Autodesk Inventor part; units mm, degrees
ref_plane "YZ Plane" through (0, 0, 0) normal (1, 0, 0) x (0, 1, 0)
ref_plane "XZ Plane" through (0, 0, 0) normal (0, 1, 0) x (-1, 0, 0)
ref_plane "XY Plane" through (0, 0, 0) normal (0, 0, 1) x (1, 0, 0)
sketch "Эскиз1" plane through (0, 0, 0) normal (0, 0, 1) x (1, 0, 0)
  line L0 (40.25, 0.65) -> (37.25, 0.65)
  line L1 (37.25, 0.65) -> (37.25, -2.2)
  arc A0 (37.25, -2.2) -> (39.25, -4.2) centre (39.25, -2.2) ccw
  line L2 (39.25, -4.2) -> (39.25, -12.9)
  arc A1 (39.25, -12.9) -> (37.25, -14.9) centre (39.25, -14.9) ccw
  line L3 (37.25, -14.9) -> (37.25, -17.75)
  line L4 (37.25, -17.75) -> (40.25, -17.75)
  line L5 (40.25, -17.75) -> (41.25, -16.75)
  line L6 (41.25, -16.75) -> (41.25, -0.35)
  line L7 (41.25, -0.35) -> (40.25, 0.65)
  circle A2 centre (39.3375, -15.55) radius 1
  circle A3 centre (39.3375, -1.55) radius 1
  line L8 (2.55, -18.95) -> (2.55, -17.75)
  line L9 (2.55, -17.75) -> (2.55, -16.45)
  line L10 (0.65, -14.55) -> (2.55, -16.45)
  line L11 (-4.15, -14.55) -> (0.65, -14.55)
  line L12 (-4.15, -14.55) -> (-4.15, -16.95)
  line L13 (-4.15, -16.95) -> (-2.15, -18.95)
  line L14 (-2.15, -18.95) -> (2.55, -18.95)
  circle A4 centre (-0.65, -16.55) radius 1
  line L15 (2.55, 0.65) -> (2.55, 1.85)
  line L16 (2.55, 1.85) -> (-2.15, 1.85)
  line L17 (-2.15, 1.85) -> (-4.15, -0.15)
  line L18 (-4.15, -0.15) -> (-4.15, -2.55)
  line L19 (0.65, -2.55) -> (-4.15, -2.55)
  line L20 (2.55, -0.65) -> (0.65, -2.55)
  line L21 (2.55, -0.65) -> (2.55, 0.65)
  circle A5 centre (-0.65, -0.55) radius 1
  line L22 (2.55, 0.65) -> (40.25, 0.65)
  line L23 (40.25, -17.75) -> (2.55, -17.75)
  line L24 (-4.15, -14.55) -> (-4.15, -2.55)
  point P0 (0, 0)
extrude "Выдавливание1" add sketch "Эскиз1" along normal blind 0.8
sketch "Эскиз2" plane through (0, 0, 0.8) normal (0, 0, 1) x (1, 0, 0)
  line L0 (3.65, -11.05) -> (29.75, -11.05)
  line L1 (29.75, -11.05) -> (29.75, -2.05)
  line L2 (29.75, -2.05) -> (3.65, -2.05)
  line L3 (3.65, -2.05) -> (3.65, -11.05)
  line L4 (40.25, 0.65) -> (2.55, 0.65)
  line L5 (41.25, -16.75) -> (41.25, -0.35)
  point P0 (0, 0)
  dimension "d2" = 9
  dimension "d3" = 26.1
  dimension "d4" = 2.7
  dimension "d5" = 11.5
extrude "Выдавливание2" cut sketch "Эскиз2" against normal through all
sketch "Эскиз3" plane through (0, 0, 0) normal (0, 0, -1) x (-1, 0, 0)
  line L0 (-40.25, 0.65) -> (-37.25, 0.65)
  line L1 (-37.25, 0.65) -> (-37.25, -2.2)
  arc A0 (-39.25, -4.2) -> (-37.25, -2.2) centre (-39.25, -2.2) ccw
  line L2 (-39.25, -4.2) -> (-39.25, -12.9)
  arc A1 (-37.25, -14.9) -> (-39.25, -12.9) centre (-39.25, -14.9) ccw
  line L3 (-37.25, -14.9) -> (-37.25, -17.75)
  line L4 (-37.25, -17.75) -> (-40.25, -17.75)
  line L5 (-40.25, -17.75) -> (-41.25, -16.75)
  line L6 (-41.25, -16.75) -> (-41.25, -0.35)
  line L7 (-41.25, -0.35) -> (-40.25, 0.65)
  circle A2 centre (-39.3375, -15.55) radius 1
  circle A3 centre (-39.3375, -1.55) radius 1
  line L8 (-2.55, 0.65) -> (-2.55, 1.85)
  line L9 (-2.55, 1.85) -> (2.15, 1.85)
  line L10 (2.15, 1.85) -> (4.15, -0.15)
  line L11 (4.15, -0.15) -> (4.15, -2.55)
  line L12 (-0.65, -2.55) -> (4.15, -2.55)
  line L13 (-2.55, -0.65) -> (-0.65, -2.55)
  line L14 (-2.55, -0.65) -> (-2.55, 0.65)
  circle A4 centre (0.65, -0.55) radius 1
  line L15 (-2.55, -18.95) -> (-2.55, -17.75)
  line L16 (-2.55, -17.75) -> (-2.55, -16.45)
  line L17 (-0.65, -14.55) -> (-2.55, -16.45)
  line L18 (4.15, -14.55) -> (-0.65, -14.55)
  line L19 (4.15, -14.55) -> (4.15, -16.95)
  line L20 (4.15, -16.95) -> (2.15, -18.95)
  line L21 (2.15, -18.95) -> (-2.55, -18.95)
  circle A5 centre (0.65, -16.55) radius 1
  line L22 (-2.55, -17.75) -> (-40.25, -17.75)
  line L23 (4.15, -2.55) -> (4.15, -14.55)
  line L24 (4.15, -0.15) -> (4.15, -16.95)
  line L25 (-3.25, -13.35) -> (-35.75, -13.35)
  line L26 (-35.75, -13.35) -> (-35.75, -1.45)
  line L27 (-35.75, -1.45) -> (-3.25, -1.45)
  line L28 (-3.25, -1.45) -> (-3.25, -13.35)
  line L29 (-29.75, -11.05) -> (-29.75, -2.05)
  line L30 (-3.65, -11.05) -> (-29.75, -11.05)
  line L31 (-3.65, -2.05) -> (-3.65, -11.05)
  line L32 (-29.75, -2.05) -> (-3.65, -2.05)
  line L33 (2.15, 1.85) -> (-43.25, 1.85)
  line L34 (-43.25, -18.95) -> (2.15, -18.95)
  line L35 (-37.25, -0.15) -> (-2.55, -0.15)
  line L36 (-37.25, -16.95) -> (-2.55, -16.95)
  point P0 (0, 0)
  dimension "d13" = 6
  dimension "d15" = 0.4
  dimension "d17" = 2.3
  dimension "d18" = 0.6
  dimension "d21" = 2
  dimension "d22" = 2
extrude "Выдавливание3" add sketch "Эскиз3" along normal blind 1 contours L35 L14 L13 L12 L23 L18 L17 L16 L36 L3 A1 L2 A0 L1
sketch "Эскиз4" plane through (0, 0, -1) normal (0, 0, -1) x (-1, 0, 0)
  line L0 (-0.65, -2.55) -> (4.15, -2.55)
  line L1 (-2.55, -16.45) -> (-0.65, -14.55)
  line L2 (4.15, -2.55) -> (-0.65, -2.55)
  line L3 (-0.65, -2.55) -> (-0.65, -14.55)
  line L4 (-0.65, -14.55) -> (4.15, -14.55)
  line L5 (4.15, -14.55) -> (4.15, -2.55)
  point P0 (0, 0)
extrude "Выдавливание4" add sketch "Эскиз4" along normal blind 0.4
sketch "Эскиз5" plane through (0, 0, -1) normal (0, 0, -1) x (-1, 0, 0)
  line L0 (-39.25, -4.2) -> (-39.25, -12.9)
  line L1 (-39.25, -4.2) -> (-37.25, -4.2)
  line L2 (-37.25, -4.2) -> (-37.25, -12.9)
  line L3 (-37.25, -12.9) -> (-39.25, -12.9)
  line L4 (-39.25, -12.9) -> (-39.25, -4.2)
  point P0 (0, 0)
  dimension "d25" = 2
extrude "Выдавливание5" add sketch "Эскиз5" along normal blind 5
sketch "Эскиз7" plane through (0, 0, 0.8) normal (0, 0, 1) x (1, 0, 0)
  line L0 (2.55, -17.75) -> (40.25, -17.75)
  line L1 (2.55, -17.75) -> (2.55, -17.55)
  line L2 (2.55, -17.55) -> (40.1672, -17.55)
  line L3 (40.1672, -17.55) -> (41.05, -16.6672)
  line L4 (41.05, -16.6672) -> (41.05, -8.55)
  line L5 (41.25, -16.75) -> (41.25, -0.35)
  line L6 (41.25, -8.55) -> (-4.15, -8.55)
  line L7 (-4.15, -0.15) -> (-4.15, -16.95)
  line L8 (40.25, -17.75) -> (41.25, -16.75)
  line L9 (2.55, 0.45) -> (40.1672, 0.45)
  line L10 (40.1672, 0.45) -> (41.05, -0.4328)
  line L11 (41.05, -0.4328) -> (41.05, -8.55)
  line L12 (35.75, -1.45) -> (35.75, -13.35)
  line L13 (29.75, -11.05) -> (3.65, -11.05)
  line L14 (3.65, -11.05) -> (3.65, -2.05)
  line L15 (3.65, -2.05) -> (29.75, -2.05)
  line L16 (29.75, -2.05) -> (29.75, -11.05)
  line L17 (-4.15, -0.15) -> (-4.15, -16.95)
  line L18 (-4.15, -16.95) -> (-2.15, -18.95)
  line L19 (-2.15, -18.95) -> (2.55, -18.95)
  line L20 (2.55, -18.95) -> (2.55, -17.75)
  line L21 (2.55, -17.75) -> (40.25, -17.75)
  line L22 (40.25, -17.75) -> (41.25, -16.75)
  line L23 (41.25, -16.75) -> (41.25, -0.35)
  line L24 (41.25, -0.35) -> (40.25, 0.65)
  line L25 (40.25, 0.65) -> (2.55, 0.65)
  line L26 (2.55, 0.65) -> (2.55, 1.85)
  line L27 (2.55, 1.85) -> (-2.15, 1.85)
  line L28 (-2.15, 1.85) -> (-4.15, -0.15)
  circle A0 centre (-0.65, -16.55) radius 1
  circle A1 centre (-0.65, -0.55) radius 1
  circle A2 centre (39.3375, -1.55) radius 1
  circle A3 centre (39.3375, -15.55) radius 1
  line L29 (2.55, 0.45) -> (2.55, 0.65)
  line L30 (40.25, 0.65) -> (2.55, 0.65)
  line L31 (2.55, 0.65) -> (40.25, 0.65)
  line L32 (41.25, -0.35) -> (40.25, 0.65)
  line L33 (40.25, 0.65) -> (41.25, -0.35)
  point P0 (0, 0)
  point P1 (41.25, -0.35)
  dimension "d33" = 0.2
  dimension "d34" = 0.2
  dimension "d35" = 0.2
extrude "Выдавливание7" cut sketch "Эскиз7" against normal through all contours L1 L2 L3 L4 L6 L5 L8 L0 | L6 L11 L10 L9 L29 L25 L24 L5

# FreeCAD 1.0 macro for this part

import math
import FreeCAD as App
import Part
import Sketcher

doc = App.newDocument("Part")
params = doc.addObject("Spreadsheet::Sheet", "Params")
for row, (alias, value) in enumerate([
    ("sketch1_diameter", "2 mm"),
    ("sketch1_width", "37.7 mm"),
    ("sketch1_width2", "4.7 mm"),
    ("sketch1_height", "1.2 mm"),
    ("sketch1_height2", "16.8 mm"),
    ("pad1_length", "0.8 mm"),
    ("sketch2_height", "9 mm"),
    ("sketch2_width", "26.1 mm"),
    ("sketch3_radius", "2 mm"),
    ("sketch3_height", "12 mm"),
    ("sketch3_width", "34.7 mm"),
    ("sketch3_width2", "4.8 mm"),
    ("sketch3_width3", "32.5 mm"),
    ("pad2_length", "1 mm"),
    ("sketch4_height", "12 mm"),
    ("sketch4_width", "4.8 mm"),
    ("pad3_length", "0.4 mm"),
    ("sketch5_width", "2 mm"),
    ("sketch5_height", "8.7 mm"),
    ("pad4_length", "5 mm"),
    ("sketch6_height", "0.2 mm"),
    ("sketch6_width", "37.7 mm"),
    ("sketch6_height2", "16.4 mm"),
], start=1):
    params.set(f"A{row}", alias)
    params.set(f"B{row}", "=" + value)
    params.setAlias(f"B{row}", alias)

body = doc.addObject("PartDesign::Body", "Body")

sketch1 = doc.addObject("Sketcher::SketchObject", "Sketch")
body.addObject(sketch1)
sketch1.AttachmentSupport = (doc.XY_Plane, [""])
sketch1.MapMode = "FlatFace"
sketch1.addGeometry([
    Part.LineSegment(App.Vector(41.25, -0.35, 0), App.Vector(40.25, 0.65, 0)),
    Part.LineSegment(App.Vector(40.25, 0.65, 0), App.Vector(2.55, 0.65, 0)),
    Part.LineSegment(App.Vector(2.55, 0.65, 0), App.Vector(2.55, 1.85, 0)),
    Part.LineSegment(App.Vector(2.55, 1.85, 0), App.Vector(-2.15, 1.85, 0)),
    Part.LineSegment(App.Vector(-2.15, 1.85, 0), App.Vector(-4.15, -0.15, 0)),
    Part.LineSegment(App.Vector(-4.15, -0.15, 0), App.Vector(-4.15, -16.95, 0)),
    Part.LineSegment(App.Vector(-4.15, -16.95, 0), App.Vector(-2.15, -18.95, 0)),
    Part.LineSegment(App.Vector(-2.15, -18.95, 0), App.Vector(2.55, -18.95, 0)),
    Part.LineSegment(App.Vector(2.55, -18.95, 0), App.Vector(2.55, -17.75, 0)),
    Part.LineSegment(App.Vector(2.55, -17.75, 0), App.Vector(40.25, -17.75, 0)),
    Part.LineSegment(App.Vector(40.25, -17.75, 0), App.Vector(41.25, -16.75, 0)),
    Part.LineSegment(App.Vector(41.25, -16.75, 0), App.Vector(41.25, -0.35, 0)),
    Part.Circle(App.Vector(39.3375, -15.55, 0), App.Vector(0, 0, 1), 1),
    Part.Circle(App.Vector(39.3375, -1.55, 0), App.Vector(0, 0, 1), 1),
    Part.Circle(App.Vector(-0.65, -0.55, 0), App.Vector(0, 0, 1), 1),
    Part.Circle(App.Vector(-0.65, -16.55, 0), App.Vector(0, 0, 1), 1),
], False)
sketch1.addConstraint([
    Sketcher.Constraint("Coincident", 0, 2, 1, 1),
    Sketcher.Constraint("Coincident", 1, 2, 2, 1),
    Sketcher.Constraint("Coincident", 2, 2, 3, 1),
    Sketcher.Constraint("Coincident", 3, 2, 4, 1),
    Sketcher.Constraint("Coincident", 4, 2, 5, 1),
    Sketcher.Constraint("Coincident", 5, 2, 6, 1),
    Sketcher.Constraint("Coincident", 6, 2, 7, 1),
    Sketcher.Constraint("Coincident", 7, 2, 8, 1),
    Sketcher.Constraint("Coincident", 8, 2, 9, 1),
    Sketcher.Constraint("Coincident", 9, 2, 10, 1),
    Sketcher.Constraint("Coincident", 10, 2, 11, 1),
    Sketcher.Constraint("Coincident", 11, 2, 0, 1),
    Sketcher.Constraint("Horizontal", 1),
    Sketcher.Constraint("Vertical", 2),
    Sketcher.Constraint("Horizontal", 3),
    Sketcher.Constraint("Vertical", 5),
    Sketcher.Constraint("Horizontal", 7),
    Sketcher.Constraint("Vertical", 8),
    Sketcher.Constraint("Horizontal", 9),
    Sketcher.Constraint("Vertical", 11),
    Sketcher.Constraint("Equal", 12, 13),
    Sketcher.Constraint("Equal", 13, 14),
    Sketcher.Constraint("Equal", 14, 15),
    Sketcher.Constraint("Perpendicular", 0, 4),
    Sketcher.Constraint("Perpendicular", 4, 6),
    Sketcher.Constraint("Perpendicular", 6, 10),
    Sketcher.Constraint("Vertical", 12, 3, 13, 3),
    Sketcher.Constraint("Vertical", 14, 3, 15, 3),
    Sketcher.Constraint("Vertical", 3, 2, 6, 2),
    Sketcher.Constraint("Vertical", 2, 2, 7, 2),
    Sketcher.Constraint("Vertical", 0, 2, 9, 2),
    Sketcher.Constraint("Equal", 2, 8),
    Sketcher.Constraint("Equal", 4, 6),
    Sketcher.Constraint("Diameter", 12, 2.0),
    Sketcher.Constraint("DistanceX", 1, 2, 1, 1, 37.7),
    Sketcher.Constraint("DistanceX", 3, 2, 3, 1, 4.7),
    Sketcher.Constraint("DistanceY", 2, 1, 2, 2, 1.2),
    Sketcher.Constraint("DistanceY", 5, 2, 5, 1, 16.8),
    Sketcher.Constraint("DistanceY", 11, 1, 11, 2, 16.4),
    Sketcher.Constraint("DistanceY", 12, 3, 13, 3, 14.0),
    Sketcher.Constraint("DistanceY", 13, 3, 14, 3, 1.0),
    Sketcher.Constraint("DistanceY", 15, 3, 14, 3, 16.0),
    Sketcher.Constraint("DistanceX", 4, 2, 3, 2, 2.0),
    Sketcher.Constraint("DistanceY", 13, 3, 0, 2, 2.2),
    Sketcher.Constraint("DistanceX", 14, 3, 0, 2, 40.9),
    Sketcher.Constraint("DistanceY", 12, 3, -1, 1, 15.55),
    Sketcher.Constraint("DistanceX", 14, 3, -1, 1, 0.65),
    Sketcher.Constraint("DistanceX", -1, 1, 12, 3, 39.3375),
])
sketch1.setExpression("Constraints[33]", "Params.sketch1_diameter")
sketch1.setExpression("Constraints[34]", "Params.sketch1_width")
sketch1.setExpression("Constraints[35]", "Params.sketch1_width2")
sketch1.setExpression("Constraints[36]", "Params.sketch1_height")
sketch1.setExpression("Constraints[37]", "Params.sketch1_height2")
pad1 = doc.addObject("PartDesign::Pad", "Pad")
body.addObject(pad1)
pad1.Profile = sketch1
pad1.setExpression("Length", "Params.pad1_length")

sketch2 = doc.addObject("Sketcher::SketchObject", "Sketch001")
body.addObject(sketch2)
sketch2.AttachmentSupport = (doc.XY_Plane, [""])
sketch2.MapMode = "FlatFace"
sketch2.AttachmentOffset = App.Placement(App.Vector(0, 0, 0.8), App.Rotation())
sketch2.addGeometry([
    Part.LineSegment(App.Vector(3.65, -2.05, 0), App.Vector(3.65, -11.05, 0)),
    Part.LineSegment(App.Vector(3.65, -11.05, 0), App.Vector(29.75, -11.05, 0)),
    Part.LineSegment(App.Vector(29.75, -11.05, 0), App.Vector(29.75, -2.05, 0)),
    Part.LineSegment(App.Vector(29.75, -2.05, 0), App.Vector(3.65, -2.05, 0)),
], False)
sketch2.addConstraint([
    Sketcher.Constraint("Coincident", 0, 2, 1, 1),
    Sketcher.Constraint("Coincident", 1, 2, 2, 1),
    Sketcher.Constraint("Coincident", 2, 2, 3, 1),
    Sketcher.Constraint("Coincident", 3, 2, 0, 1),
    Sketcher.Constraint("Vertical", 0),
    Sketcher.Constraint("Horizontal", 1),
    Sketcher.Constraint("Vertical", 2),
    Sketcher.Constraint("Horizontal", 3),
    Sketcher.Constraint("DistanceY", 0, 2, 0, 1, 9.0),
    Sketcher.Constraint("DistanceX", 1, 1, 1, 2, 26.1),
    Sketcher.Constraint("DistanceX", -1, 1, 0, 2, 3.65),
    Sketcher.Constraint("DistanceY", 0, 2, -1, 1, 11.05),
])
sketch2.setExpression("Constraints[8]", "Params.sketch2_height")
sketch2.setExpression("Constraints[9]", "Params.sketch2_width")
pocket1 = doc.addObject("PartDesign::Pocket", "Pocket")
body.addObject(pocket1)
pocket1.Profile = sketch2
pocket1.Type = "ThroughAll"

sketch3 = doc.addObject("Sketcher::SketchObject", "Sketch002")
body.addObject(sketch3)
sketch3.AttachmentSupport = (doc.XY_Plane, [""])
sketch3.MapMode = "FlatFace"
sketch3.addGeometry([
    Part.LineSegment(App.Vector(2.55, -0.15, 0), App.Vector(37.25, -0.15, 0)),
    Part.LineSegment(App.Vector(37.25, -0.15, 0), App.Vector(37.25, -2.2, 0)),
    Part.ArcOfCircle(Part.Circle(App.Vector(39.25, -2.2, 0), App.Vector(0, 0, 1), 2), math.radians(180), math.radians(270)),
    Part.LineSegment(App.Vector(39.25, -4.2, 0), App.Vector(39.25, -12.9, 0)),
    Part.ArcOfCircle(Part.Circle(App.Vector(39.25, -14.9, 0), App.Vector(0, 0, 1), 2), math.radians(90), math.radians(180)),
    Part.LineSegment(App.Vector(37.25, -14.9, 0), App.Vector(37.25, -16.95, 0)),
    Part.LineSegment(App.Vector(37.25, -16.95, 0), App.Vector(2.55, -16.95, 0)),
    Part.LineSegment(App.Vector(2.55, -16.95, 0), App.Vector(2.55, -16.45, 0)),
    Part.LineSegment(App.Vector(2.55, -16.45, 0), App.Vector(0.65, -14.55, 0)),
    Part.LineSegment(App.Vector(0.65, -14.55, 0), App.Vector(-4.15, -14.55, 0)),
    Part.LineSegment(App.Vector(-4.15, -14.55, 0), App.Vector(-4.15, -2.55, 0)),
    Part.LineSegment(App.Vector(-4.15, -2.55, 0), App.Vector(0.65, -2.55, 0)),
    Part.LineSegment(App.Vector(0.65, -2.55, 0), App.Vector(2.55, -0.65, 0)),
    Part.LineSegment(App.Vector(2.55, -0.65, 0), App.Vector(2.55, -0.15, 0)),
    Part.LineSegment(App.Vector(3.25, -1.45, 0), App.Vector(3.25, -13.35, 0)),
    Part.LineSegment(App.Vector(3.25, -13.35, 0), App.Vector(35.75, -13.35, 0)),
    Part.LineSegment(App.Vector(35.75, -13.35, 0), App.Vector(35.75, -1.45, 0)),
    Part.LineSegment(App.Vector(35.75, -1.45, 0), App.Vector(3.25, -1.45, 0)),
], False)
sketch3.addConstraint([
    Sketcher.Constraint("Coincident", 0, 2, 1, 1),
    Sketcher.Constraint("Tangent", 1, 2, 2, 1),
    Sketcher.Constraint("Coincident", 2, 2, 3, 1),
    Sketcher.Constraint("Coincident", 3, 2, 4, 1),
    Sketcher.Constraint("Tangent", 4, 2, 5, 1),
    Sketcher.Constraint("Coincident", 5, 2, 6, 1),
    Sketcher.Constraint("Coincident", 6, 2, 7, 1),
    Sketcher.Constraint("Coincident", 7, 2, 8, 1),
    Sketcher.Constraint("Coincident", 8, 2, 9, 1),
    Sketcher.Constraint("Coincident", 9, 2, 10, 1),
    Sketcher.Constraint("Coincident", 10, 2, 11, 1),
    Sketcher.Constraint("Coincident", 11, 2, 12, 1),
    Sketcher.Constraint("Coincident", 12, 2, 13, 1),
    Sketcher.Constraint("Coincident", 13, 2, 0, 1),
    Sketcher.Constraint("Coincident", 14, 2, 15, 1),
    Sketcher.Constraint("Coincident", 15, 2, 16, 1),
    Sketcher.Constraint("Coincident", 16, 2, 17, 1),
    Sketcher.Constraint("Coincident", 17, 2, 14, 1),
    Sketcher.Constraint("Horizontal", 0),
    Sketcher.Constraint("Vertical", 1),
    Sketcher.Constraint("Vertical", 3),
    Sketcher.Constraint("Vertical", 5),
    Sketcher.Constraint("Horizontal", 6),
    Sketcher.Constraint("Vertical", 7),
    Sketcher.Constraint("Horizontal", 9),
    Sketcher.Constraint("Vertical", 10),
    Sketcher.Constraint("Horizontal", 11),
    Sketcher.Constraint("Vertical", 13),
    Sketcher.Constraint("Vertical", 14),
    Sketcher.Constraint("Horizontal", 15),
    Sketcher.Constraint("Vertical", 16),
    Sketcher.Constraint("Horizontal", 17),
    Sketcher.Constraint("Equal", 2, 4),
    Sketcher.Constraint("Perpendicular", 8, 12),
    Sketcher.Constraint("Vertical", 2, 3, 4, 3),
    Sketcher.Constraint("Vertical", 4, 3, 2, 2),
    Sketcher.Constraint("Vertical", 8, 2, 11, 2),
    Sketcher.Constraint("Vertical", 7, 2, 12, 2),
    Sketcher.Constraint("Equal", 1, 5),
    Sketcher.Constraint("Equal", 7, 13),
    Sketcher.Constraint("Equal", 8, 12),
    Sketcher.Constraint("Radius", 2, 2.0),
    Sketcher.Constraint("DistanceY", 10, 1, 10, 2, 12.0),
    Sketcher.Constraint("DistanceX", 0, 1, 0, 2, 34.7),
    Sketcher.Constraint("DistanceX", 9, 2, 9, 1, 4.8),
    Sketcher.Constraint("DistanceX", 15, 1, 15, 2, 32.5),
    Sketcher.Constraint("DistanceY", 3, 2, 3, 1, 8.7),
    Sketcher.Constraint("DistanceY", 7, 1, 7, 2, 0.5),
    Sketcher.Constraint("DistanceY", 14, 2, 14, 1, 11.9),
    Sketcher.Constraint("DistanceY", 1, 2, 1, 1, 2.05),
    Sketcher.Constraint("DistanceY", 2, 3, -1, 1, 2.2),
    Sketcher.Constraint("DistanceX", 8, 2, 14, 2, 2.6),
    Sketcher.Constraint("DistanceY", 8, 2, 14, 2, 1.2),
    Sketcher.Constraint("DistanceX", -1, 1, 2, 3, 39.25),
])
sketch3.setExpression("Constraints[41]", "Params.sketch3_radius")
sketch3.setExpression("Constraints[42]", "Params.sketch3_height")
sketch3.setExpression("Constraints[43]", "Params.sketch3_width")
sketch3.setExpression("Constraints[44]", "Params.sketch3_width2")
sketch3.setExpression("Constraints[45]", "Params.sketch3_width3")
pad2 = doc.addObject("PartDesign::Pad", "Pad001")
body.addObject(pad2)
pad2.Profile = sketch3
pad2.setExpression("Length", "Params.pad2_length")
pad2.Reversed = True

sketch4 = doc.addObject("Sketcher::SketchObject", "Sketch003")
body.addObject(sketch4)
sketch4.AttachmentSupport = (doc.XY_Plane, [""])
sketch4.MapMode = "FlatFace"
sketch4.AttachmentOffset = App.Placement(App.Vector(0, 0, -1), App.Rotation())
sketch4.addGeometry([
    Part.LineSegment(App.Vector(-4.15, -2.55, 0), App.Vector(0.65, -2.55, 0)),
    Part.LineSegment(App.Vector(0.65, -2.55, 0), App.Vector(0.65, -14.55, 0)),
    Part.LineSegment(App.Vector(0.65, -14.55, 0), App.Vector(-4.15, -14.55, 0)),
    Part.LineSegment(App.Vector(-4.15, -14.55, 0), App.Vector(-4.15, -2.55, 0)),
], False)
sketch4.addConstraint([
    Sketcher.Constraint("Coincident", 0, 2, 1, 1),
    Sketcher.Constraint("Coincident", 1, 2, 2, 1),
    Sketcher.Constraint("Coincident", 2, 2, 3, 1),
    Sketcher.Constraint("Coincident", 3, 2, 0, 1),
    Sketcher.Constraint("Horizontal", 0),
    Sketcher.Constraint("Vertical", 1),
    Sketcher.Constraint("Horizontal", 2),
    Sketcher.Constraint("Vertical", 3),
    Sketcher.Constraint("DistanceY", 1, 2, 1, 1, 12.0),
    Sketcher.Constraint("DistanceX", 0, 1, 0, 2, 4.8),
    Sketcher.Constraint("DistanceX", -1, 1, 0, 2, 0.65),
    Sketcher.Constraint("DistanceY", 0, 2, -1, 1, 2.55),
])
sketch4.setExpression("Constraints[8]", "Params.sketch4_height")
sketch4.setExpression("Constraints[9]", "Params.sketch4_width")
pad3 = doc.addObject("PartDesign::Pad", "Pad002")
body.addObject(pad3)
pad3.Profile = sketch4
pad3.setExpression("Length", "Params.pad3_length")
pad3.Reversed = True

sketch5 = doc.addObject("Sketcher::SketchObject", "Sketch004")
body.addObject(sketch5)
sketch5.AttachmentSupport = (doc.XY_Plane, [""])
sketch5.MapMode = "FlatFace"
sketch5.AttachmentOffset = App.Placement(App.Vector(0, 0, -1), App.Rotation())
sketch5.addGeometry([
    Part.LineSegment(App.Vector(37.25, -4.2, 0), App.Vector(39.25, -4.2, 0)),
    Part.LineSegment(App.Vector(39.25, -4.2, 0), App.Vector(39.25, -12.9, 0)),
    Part.LineSegment(App.Vector(39.25, -12.9, 0), App.Vector(37.25, -12.9, 0)),
    Part.LineSegment(App.Vector(37.25, -12.9, 0), App.Vector(37.25, -4.2, 0)),
], False)
sketch5.addConstraint([
    Sketcher.Constraint("Coincident", 0, 2, 1, 1),
    Sketcher.Constraint("Coincident", 1, 2, 2, 1),
    Sketcher.Constraint("Coincident", 2, 2, 3, 1),
    Sketcher.Constraint("Coincident", 3, 2, 0, 1),
    Sketcher.Constraint("Horizontal", 0),
    Sketcher.Constraint("Vertical", 1),
    Sketcher.Constraint("Horizontal", 2),
    Sketcher.Constraint("Vertical", 3),
    Sketcher.Constraint("DistanceX", 0, 1, 0, 2, 2.0),
    Sketcher.Constraint("DistanceY", 1, 2, 1, 1, 8.7),
    Sketcher.Constraint("DistanceY", 0, 2, -1, 1, 4.2),
    Sketcher.Constraint("DistanceX", -1, 1, 0, 2, 39.25),
])
sketch5.setExpression("Constraints[8]", "Params.sketch5_width")
sketch5.setExpression("Constraints[9]", "Params.sketch5_height")
pad4 = doc.addObject("PartDesign::Pad", "Pad003")
body.addObject(pad4)
pad4.Profile = sketch5
pad4.setExpression("Length", "Params.pad4_length")
pad4.Reversed = True

sketch6 = doc.addObject("Sketcher::SketchObject", "Sketch005")
body.addObject(sketch6)
sketch6.AttachmentSupport = (doc.XY_Plane, [""])
sketch6.MapMode = "FlatFace"
sketch6.AttachmentOffset = App.Placement(App.Vector(0, 0, 0.8), App.Rotation())
sketch6.addGeometry([
    Part.LineSegment(App.Vector(2.55, -17.55, 0), App.Vector(2.55, -17.75, 0)),
    Part.LineSegment(App.Vector(2.55, -17.75, 0), App.Vector(40.25, -17.75, 0)),
    Part.LineSegment(App.Vector(40.25, -17.75, 0), App.Vector(41.25, -16.75, 0)),
    Part.LineSegment(App.Vector(41.25, -16.75, 0), App.Vector(41.25, -0.35, 0)),
    Part.LineSegment(App.Vector(41.25, -0.35, 0), App.Vector(40.25, 0.65, 0)),
    Part.LineSegment(App.Vector(40.25, 0.65, 0), App.Vector(2.55, 0.65, 0)),
    Part.LineSegment(App.Vector(2.55, 0.65, 0), App.Vector(2.55, 0.45, 0)),
    Part.LineSegment(App.Vector(2.55, 0.45, 0), App.Vector(40.1672, 0.45, 0)),
    Part.LineSegment(App.Vector(40.1672, 0.45, 0), App.Vector(41.05, -0.4328, 0)),
    Part.LineSegment(App.Vector(41.05, -0.4328, 0), App.Vector(41.05, -16.6672, 0)),
    Part.LineSegment(App.Vector(41.05, -16.6672, 0), App.Vector(40.1672, -17.55, 0)),
    Part.LineSegment(App.Vector(40.1672, -17.55, 0), App.Vector(2.55, -17.55, 0)),
], False)
sketch6.addConstraint([
    Sketcher.Constraint("Coincident", 0, 2, 1, 1),
    Sketcher.Constraint("Coincident", 1, 2, 2, 1),
    Sketcher.Constraint("Coincident", 2, 2, 3, 1),
    Sketcher.Constraint("Coincident", 3, 2, 4, 1),
    Sketcher.Constraint("Coincident", 4, 2, 5, 1),
    Sketcher.Constraint("Coincident", 5, 2, 6, 1),
    Sketcher.Constraint("Coincident", 6, 2, 7, 1),
    Sketcher.Constraint("Coincident", 7, 2, 8, 1),
    Sketcher.Constraint("Coincident", 8, 2, 9, 1),
    Sketcher.Constraint("Coincident", 9, 2, 10, 1),
    Sketcher.Constraint("Coincident", 10, 2, 11, 1),
    Sketcher.Constraint("Coincident", 11, 2, 0, 1),
    Sketcher.Constraint("Vertical", 0),
    Sketcher.Constraint("Horizontal", 1),
    Sketcher.Constraint("Vertical", 3),
    Sketcher.Constraint("Horizontal", 5),
    Sketcher.Constraint("Vertical", 6),
    Sketcher.Constraint("Horizontal", 7),
    Sketcher.Constraint("Vertical", 9),
    Sketcher.Constraint("Horizontal", 11),
    Sketcher.Constraint("Perpendicular", 2, 4),
    Sketcher.Constraint("Parallel", 4, 8),
    Sketcher.Constraint("Perpendicular", 8, 10),
    Sketcher.Constraint("Vertical", 1, 2, 4, 2),
    Sketcher.Constraint("Vertical", 0, 2, 5, 2),
    Sketcher.Constraint("Vertical", 7, 2, 10, 2),
    Sketcher.Constraint("Equal", 0, 6),
    Sketcher.Constraint("Equal", 2, 4),
    Sketcher.Constraint("DistanceY", 0, 2, 0, 1, 0.2),
    Sketcher.Constraint("DistanceX", 8, 2, 3, 2, 0.2),
    Sketcher.Constraint("DistanceX", 1, 1, 1, 2, 37.7),
    Sketcher.Constraint("DistanceY", 3, 1, 3, 2, 16.4),
    Sketcher.Constraint("DistanceX", 1, 2, 2, 2, 1.0),
    Sketcher.Constraint("DistanceX", -1, 1, 0, 2, 2.55),
    Sketcher.Constraint("DistanceY", 0, 2, -1, 1, 17.75),
    Sketcher.Constraint("DistanceX", 7, 1, 7, 2, 37.6172),
])
sketch6.setExpression("Constraints[28]", "Params.sketch6_height")
sketch6.setExpression("Constraints[30]", "Params.sketch6_width")
sketch6.setExpression("Constraints[31]", "Params.sketch6_height2")
pocket2 = doc.addObject("PartDesign::Pocket", "Pocket001")
body.addObject(pocket2)
pocket2.Profile = sketch6
pocket2.Type = "ThroughAll"

doc.recompute()
